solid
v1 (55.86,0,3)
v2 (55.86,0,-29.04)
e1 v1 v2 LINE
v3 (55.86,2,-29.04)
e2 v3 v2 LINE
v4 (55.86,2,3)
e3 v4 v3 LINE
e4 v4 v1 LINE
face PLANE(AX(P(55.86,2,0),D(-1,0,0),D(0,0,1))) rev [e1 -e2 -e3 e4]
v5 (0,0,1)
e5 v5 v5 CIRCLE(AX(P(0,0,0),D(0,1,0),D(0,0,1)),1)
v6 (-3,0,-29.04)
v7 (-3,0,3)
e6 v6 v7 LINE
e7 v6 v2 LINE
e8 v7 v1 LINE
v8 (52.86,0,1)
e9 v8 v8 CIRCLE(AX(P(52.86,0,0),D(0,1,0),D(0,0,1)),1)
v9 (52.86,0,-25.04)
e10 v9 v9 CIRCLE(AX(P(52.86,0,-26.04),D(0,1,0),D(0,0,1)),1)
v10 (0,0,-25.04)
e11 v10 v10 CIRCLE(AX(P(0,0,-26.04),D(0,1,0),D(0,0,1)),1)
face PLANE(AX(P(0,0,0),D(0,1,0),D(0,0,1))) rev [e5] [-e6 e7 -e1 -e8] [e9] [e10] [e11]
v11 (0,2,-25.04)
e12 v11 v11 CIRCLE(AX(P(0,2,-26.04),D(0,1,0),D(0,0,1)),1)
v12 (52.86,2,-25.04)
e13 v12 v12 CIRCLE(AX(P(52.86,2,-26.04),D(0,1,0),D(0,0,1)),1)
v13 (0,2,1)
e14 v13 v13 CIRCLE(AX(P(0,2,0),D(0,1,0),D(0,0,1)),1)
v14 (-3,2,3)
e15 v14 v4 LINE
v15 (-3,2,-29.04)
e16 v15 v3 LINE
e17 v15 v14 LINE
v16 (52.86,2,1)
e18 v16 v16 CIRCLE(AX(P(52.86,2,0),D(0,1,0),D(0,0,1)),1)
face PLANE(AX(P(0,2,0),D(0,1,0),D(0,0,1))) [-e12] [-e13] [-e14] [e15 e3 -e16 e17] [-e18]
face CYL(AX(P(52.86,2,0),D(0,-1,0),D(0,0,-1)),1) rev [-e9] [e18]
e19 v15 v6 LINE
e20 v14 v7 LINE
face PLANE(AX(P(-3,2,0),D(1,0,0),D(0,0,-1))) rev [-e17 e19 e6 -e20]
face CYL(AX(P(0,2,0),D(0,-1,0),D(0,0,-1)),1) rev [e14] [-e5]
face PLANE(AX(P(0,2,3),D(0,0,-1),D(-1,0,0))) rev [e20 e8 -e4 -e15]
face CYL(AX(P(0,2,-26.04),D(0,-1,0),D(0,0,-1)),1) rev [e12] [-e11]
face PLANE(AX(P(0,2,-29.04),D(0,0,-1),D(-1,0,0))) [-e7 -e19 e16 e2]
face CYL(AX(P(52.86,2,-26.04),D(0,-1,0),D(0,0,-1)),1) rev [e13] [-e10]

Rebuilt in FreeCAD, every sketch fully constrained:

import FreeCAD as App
import Part
import Sketcher
from FreeCAD import Vector

doc = App.newDocument("Part")
params = doc.addObject("Spreadsheet::Sheet", "Params")
for row, (alias, value) in enumerate([
    ("sketch1_diameter", "2 mm"),
    ("sketch1_width", "58.86 mm"),
    ("sketch1_height", "32.04 mm"),
    ("pad1_length", "2 mm"),
], start=1):
    params.set(f"A{row}", alias)
    params.set(f"B{row}", "=" + value)
    params.setAlias(f"B{row}", alias)

body = doc.addObject("PartDesign::Body", "Body")

sketch1 = body.newObject("Sketcher::SketchObject", "Sketch")
sketch1.AttachmentSupport = (doc.getObject("XZ_Plane"), [""])
sketch1.MapMode = "FlatFace"
sketch1.addGeometry([
    Part.LineSegment(Vector(-3, -29, 0), Vector(-3, 3, 0)),
    Part.LineSegment(Vector(-3, 3, 0), Vector(55.9, 3, 0)),
    Part.LineSegment(Vector(55.9, 3, 0), Vector(55.9, -29, 0)),
    Part.LineSegment(Vector(55.9, -29, 0), Vector(-3, -29, 0)),
    Part.Circle(Vector(0, 0, 0), Vector(0, 0, 1), 1),
    Part.Circle(Vector(52.9, 0, 0), Vector(0, 0, 1), 1),
    Part.Circle(Vector(0, -26, 0), Vector(0, 0, 1), 1),
    Part.Circle(Vector(52.9, -26, 0), Vector(0, 0, 1), 1),
], False)
sketch1.addConstraint([
    Sketcher.Constraint("Coincident", 0, 2, 1, 1),
    Sketcher.Constraint("Coincident", 1, 2, 2, 1),
    Sketcher.Constraint("Coincident", 2, 2, 3, 1),
    Sketcher.Constraint("Coincident", 3, 2, 0, 1),
    Sketcher.Constraint("Vertical", 0),
    Sketcher.Constraint("Horizontal", 1),
    Sketcher.Constraint("Vertical", 2),
    Sketcher.Constraint("Horizontal", 3),
    Sketcher.Constraint("Coincident", 4, 3, -1, 1),
    Sketcher.Constraint("Equal", 4, 5),
    Sketcher.Constraint("Equal", 5, 6),
    Sketcher.Constraint("Equal", 6, 7),
    Sketcher.Constraint("PointOnObject", 5, 3, -1),
    Sketcher.Constraint("PointOnObject", 6, 3, -2),
    Sketcher.Constraint("Horizontal", 6, 3, 7, 3),
    Sketcher.Constraint("Vertical", 5, 3, 7, 3),
    Sketcher.Constraint("Diameter", 4, 2.0),
    Sketcher.Constraint("DistanceX", 0, 2, -1, 1, 3.0),
    Sketcher.Constraint("DistanceY", -1, 1, 0, 2, 3.0),
    Sketcher.Constraint("DistanceX", 5, 3, 1, 2, 3.0),
    Sketcher.Constraint("DistanceY", 2, 2, 7, 3, 3.0),
    Sketcher.Constraint("DistanceX", 1, 1, 1, 2, 58.86),
    Sketcher.Constraint("DistanceY", 0, 1, 0, 2, 32.04),
])
sketch1.setExpression("Constraints[16]", "Params.sketch1_diameter")
sketch1.setExpression("Constraints[21]", "Params.sketch1_width")
sketch1.setExpression("Constraints[22]", "Params.sketch1_height")
pad1 = body.newObject("PartDesign::Pad", "Pad")
pad1.Profile = sketch1
pad1.setExpression("Length", "Params.pad1_length")
pad1.Reversed = True

doc.recompute()
